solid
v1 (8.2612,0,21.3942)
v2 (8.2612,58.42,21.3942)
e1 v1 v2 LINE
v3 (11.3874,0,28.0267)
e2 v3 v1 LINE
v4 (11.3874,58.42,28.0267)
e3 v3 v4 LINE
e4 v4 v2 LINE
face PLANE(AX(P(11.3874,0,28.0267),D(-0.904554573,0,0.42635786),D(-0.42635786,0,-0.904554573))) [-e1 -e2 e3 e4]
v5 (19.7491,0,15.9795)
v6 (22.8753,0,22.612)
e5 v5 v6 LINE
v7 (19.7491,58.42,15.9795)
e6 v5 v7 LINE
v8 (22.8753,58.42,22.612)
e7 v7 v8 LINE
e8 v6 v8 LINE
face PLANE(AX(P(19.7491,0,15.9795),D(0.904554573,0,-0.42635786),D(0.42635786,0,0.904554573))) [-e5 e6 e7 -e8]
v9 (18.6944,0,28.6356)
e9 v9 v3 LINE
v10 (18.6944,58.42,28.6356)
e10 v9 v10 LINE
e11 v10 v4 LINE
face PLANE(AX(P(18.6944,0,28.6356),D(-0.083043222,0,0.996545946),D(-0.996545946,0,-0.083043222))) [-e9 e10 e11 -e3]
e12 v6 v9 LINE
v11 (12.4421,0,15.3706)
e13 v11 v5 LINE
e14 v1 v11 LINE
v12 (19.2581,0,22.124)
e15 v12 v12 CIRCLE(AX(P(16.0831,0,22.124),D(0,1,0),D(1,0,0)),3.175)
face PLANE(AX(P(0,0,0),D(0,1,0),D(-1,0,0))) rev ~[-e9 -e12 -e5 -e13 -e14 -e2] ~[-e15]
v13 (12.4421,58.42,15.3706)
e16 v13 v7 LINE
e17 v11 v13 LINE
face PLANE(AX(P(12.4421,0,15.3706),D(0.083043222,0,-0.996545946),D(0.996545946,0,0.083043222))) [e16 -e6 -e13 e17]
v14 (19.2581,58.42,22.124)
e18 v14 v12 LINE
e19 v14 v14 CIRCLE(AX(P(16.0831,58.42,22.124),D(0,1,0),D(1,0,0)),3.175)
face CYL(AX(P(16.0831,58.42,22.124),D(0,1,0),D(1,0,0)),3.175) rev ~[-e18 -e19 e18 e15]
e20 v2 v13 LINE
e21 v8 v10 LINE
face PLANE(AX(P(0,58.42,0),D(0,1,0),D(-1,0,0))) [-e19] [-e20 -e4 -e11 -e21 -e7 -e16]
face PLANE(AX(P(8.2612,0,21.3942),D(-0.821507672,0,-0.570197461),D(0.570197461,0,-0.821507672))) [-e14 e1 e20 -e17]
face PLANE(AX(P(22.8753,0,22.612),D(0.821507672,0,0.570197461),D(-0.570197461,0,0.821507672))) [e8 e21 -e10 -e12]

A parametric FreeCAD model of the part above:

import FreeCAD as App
import Part
import Sketcher

V = App.Vector
Q = App.Units.Quantity


def add_polygon(sketch, points):
    """Adds a closed chain of lines whose ends are joined by coincident constraints."""
    first, n = sketch.GeometryCount, len(points)
    for a, b in zip(points, points[1:] + points[:1]):
        sketch.addGeometry(Part.LineSegment(App.Vector(*a, 0), App.Vector(*b, 0)), False)
    for i in range(n):
        sketch.addConstraint(Sketcher.Constraint("Coincident", first + i, 2, first + (i + 1) % n, 1))

doc = App.newDocument("Part")
params = doc.addObject("Spreadsheet::Sheet", "Params")
for row, (alias, value) in enumerate([
    ("pad1_length", "2.3 in"),
    ("sketch2_diameter", "0.25 in"),
], start=1):
    params.set(f"A{row}", alias)
    params.set(f"B{row}", "=" + value)
    params.setAlias(f"B{row}", alias)

body = doc.addObject("PartDesign::Body", "Body")

sketch1 = doc.addObject("Sketcher::SketchObject", "Sketch")
body.addObject(sketch1)
sketch1.AttachmentSupport = (doc.XZ_Plane, [""])
sketch1.MapMode = "FlatFace"
add_polygon(sketch1, [(12.4421, 15.3706), (8.2612, 21.3942), (11.3874, 28.0267), (18.6944, 28.6356), (22.8753, 22.612), (19.7491, 15.9795)])
sketch1.addConstraint([
    Sketcher.Constraint("Parallel", 0, 3),
    Sketcher.Constraint("Parallel", 1, 4),
    Sketcher.Constraint("Parallel", 2, 5),
    Sketcher.Constraint("Equal", 0, 1),
    Sketcher.Constraint("Equal", 1, 2),
    Sketcher.Constraint("Equal", 2, 3),
    Sketcher.Constraint("DistanceX", -1, 1, 2, 2, Q("0.736 in")),
    Sketcher.Constraint("DistanceY", -1, 1, 0, 2, Q("0.8423 in")),
    Sketcher.Constraint("DistanceX", -1, 1, 3, 2, Q("0.9006 in")),
    Sketcher.Constraint("DistanceY", 0, 2, 2, 2, Q("0.2851 in")),
    Sketcher.Constraint("DistanceX", 1, 2, 4, 2, Q("0.3292 in")),
    Sketcher.Constraint("DistanceY", 4, 2, 1, 2, Q("0.4743 in")),
])
pad1 = doc.addObject("PartDesign::Pad", "Pad")
body.addObject(pad1)
pad1.Profile = sketch1
pad1.setExpression("Length", "Params.pad1_length")
pad1.Reversed = True

sketch2 = doc.addObject("Sketcher::SketchObject", "Sketch001")
body.addObject(sketch2)
sketch2.AttachmentSupport = (doc.XZ_Plane, [""])
sketch2.MapMode = "FlatFace"
sketch2.AttachmentOffset = App.Placement(V(0, 0, -2.3 * 25.4), App.Rotation())
sketch2.addGeometry(Part.Circle(V(16.0831, 22.124, 0), V(0, 0, 1), 3.175), False)
sketch2.addConstraint([
    Sketcher.Constraint("Diameter", 0, Q("0.25 in")),
    Sketcher.Constraint("DistanceX", -1, 1, 0, 3, Q("0.6332 in")),
    Sketcher.Constraint("DistanceY", -1, 1, 0, 3, Q("22.124 mm")),
])
sketch2.setExpression("Constraints[0]", "Params.sketch2_diameter")
pocket1 = doc.addObject("PartDesign::Pocket", "Pocket")
body.addObject(pocket1)
pocket1.Profile = sketch2
pocket1.Type = "ThroughAll"
pocket1.Reversed = True

doc.recompute()
